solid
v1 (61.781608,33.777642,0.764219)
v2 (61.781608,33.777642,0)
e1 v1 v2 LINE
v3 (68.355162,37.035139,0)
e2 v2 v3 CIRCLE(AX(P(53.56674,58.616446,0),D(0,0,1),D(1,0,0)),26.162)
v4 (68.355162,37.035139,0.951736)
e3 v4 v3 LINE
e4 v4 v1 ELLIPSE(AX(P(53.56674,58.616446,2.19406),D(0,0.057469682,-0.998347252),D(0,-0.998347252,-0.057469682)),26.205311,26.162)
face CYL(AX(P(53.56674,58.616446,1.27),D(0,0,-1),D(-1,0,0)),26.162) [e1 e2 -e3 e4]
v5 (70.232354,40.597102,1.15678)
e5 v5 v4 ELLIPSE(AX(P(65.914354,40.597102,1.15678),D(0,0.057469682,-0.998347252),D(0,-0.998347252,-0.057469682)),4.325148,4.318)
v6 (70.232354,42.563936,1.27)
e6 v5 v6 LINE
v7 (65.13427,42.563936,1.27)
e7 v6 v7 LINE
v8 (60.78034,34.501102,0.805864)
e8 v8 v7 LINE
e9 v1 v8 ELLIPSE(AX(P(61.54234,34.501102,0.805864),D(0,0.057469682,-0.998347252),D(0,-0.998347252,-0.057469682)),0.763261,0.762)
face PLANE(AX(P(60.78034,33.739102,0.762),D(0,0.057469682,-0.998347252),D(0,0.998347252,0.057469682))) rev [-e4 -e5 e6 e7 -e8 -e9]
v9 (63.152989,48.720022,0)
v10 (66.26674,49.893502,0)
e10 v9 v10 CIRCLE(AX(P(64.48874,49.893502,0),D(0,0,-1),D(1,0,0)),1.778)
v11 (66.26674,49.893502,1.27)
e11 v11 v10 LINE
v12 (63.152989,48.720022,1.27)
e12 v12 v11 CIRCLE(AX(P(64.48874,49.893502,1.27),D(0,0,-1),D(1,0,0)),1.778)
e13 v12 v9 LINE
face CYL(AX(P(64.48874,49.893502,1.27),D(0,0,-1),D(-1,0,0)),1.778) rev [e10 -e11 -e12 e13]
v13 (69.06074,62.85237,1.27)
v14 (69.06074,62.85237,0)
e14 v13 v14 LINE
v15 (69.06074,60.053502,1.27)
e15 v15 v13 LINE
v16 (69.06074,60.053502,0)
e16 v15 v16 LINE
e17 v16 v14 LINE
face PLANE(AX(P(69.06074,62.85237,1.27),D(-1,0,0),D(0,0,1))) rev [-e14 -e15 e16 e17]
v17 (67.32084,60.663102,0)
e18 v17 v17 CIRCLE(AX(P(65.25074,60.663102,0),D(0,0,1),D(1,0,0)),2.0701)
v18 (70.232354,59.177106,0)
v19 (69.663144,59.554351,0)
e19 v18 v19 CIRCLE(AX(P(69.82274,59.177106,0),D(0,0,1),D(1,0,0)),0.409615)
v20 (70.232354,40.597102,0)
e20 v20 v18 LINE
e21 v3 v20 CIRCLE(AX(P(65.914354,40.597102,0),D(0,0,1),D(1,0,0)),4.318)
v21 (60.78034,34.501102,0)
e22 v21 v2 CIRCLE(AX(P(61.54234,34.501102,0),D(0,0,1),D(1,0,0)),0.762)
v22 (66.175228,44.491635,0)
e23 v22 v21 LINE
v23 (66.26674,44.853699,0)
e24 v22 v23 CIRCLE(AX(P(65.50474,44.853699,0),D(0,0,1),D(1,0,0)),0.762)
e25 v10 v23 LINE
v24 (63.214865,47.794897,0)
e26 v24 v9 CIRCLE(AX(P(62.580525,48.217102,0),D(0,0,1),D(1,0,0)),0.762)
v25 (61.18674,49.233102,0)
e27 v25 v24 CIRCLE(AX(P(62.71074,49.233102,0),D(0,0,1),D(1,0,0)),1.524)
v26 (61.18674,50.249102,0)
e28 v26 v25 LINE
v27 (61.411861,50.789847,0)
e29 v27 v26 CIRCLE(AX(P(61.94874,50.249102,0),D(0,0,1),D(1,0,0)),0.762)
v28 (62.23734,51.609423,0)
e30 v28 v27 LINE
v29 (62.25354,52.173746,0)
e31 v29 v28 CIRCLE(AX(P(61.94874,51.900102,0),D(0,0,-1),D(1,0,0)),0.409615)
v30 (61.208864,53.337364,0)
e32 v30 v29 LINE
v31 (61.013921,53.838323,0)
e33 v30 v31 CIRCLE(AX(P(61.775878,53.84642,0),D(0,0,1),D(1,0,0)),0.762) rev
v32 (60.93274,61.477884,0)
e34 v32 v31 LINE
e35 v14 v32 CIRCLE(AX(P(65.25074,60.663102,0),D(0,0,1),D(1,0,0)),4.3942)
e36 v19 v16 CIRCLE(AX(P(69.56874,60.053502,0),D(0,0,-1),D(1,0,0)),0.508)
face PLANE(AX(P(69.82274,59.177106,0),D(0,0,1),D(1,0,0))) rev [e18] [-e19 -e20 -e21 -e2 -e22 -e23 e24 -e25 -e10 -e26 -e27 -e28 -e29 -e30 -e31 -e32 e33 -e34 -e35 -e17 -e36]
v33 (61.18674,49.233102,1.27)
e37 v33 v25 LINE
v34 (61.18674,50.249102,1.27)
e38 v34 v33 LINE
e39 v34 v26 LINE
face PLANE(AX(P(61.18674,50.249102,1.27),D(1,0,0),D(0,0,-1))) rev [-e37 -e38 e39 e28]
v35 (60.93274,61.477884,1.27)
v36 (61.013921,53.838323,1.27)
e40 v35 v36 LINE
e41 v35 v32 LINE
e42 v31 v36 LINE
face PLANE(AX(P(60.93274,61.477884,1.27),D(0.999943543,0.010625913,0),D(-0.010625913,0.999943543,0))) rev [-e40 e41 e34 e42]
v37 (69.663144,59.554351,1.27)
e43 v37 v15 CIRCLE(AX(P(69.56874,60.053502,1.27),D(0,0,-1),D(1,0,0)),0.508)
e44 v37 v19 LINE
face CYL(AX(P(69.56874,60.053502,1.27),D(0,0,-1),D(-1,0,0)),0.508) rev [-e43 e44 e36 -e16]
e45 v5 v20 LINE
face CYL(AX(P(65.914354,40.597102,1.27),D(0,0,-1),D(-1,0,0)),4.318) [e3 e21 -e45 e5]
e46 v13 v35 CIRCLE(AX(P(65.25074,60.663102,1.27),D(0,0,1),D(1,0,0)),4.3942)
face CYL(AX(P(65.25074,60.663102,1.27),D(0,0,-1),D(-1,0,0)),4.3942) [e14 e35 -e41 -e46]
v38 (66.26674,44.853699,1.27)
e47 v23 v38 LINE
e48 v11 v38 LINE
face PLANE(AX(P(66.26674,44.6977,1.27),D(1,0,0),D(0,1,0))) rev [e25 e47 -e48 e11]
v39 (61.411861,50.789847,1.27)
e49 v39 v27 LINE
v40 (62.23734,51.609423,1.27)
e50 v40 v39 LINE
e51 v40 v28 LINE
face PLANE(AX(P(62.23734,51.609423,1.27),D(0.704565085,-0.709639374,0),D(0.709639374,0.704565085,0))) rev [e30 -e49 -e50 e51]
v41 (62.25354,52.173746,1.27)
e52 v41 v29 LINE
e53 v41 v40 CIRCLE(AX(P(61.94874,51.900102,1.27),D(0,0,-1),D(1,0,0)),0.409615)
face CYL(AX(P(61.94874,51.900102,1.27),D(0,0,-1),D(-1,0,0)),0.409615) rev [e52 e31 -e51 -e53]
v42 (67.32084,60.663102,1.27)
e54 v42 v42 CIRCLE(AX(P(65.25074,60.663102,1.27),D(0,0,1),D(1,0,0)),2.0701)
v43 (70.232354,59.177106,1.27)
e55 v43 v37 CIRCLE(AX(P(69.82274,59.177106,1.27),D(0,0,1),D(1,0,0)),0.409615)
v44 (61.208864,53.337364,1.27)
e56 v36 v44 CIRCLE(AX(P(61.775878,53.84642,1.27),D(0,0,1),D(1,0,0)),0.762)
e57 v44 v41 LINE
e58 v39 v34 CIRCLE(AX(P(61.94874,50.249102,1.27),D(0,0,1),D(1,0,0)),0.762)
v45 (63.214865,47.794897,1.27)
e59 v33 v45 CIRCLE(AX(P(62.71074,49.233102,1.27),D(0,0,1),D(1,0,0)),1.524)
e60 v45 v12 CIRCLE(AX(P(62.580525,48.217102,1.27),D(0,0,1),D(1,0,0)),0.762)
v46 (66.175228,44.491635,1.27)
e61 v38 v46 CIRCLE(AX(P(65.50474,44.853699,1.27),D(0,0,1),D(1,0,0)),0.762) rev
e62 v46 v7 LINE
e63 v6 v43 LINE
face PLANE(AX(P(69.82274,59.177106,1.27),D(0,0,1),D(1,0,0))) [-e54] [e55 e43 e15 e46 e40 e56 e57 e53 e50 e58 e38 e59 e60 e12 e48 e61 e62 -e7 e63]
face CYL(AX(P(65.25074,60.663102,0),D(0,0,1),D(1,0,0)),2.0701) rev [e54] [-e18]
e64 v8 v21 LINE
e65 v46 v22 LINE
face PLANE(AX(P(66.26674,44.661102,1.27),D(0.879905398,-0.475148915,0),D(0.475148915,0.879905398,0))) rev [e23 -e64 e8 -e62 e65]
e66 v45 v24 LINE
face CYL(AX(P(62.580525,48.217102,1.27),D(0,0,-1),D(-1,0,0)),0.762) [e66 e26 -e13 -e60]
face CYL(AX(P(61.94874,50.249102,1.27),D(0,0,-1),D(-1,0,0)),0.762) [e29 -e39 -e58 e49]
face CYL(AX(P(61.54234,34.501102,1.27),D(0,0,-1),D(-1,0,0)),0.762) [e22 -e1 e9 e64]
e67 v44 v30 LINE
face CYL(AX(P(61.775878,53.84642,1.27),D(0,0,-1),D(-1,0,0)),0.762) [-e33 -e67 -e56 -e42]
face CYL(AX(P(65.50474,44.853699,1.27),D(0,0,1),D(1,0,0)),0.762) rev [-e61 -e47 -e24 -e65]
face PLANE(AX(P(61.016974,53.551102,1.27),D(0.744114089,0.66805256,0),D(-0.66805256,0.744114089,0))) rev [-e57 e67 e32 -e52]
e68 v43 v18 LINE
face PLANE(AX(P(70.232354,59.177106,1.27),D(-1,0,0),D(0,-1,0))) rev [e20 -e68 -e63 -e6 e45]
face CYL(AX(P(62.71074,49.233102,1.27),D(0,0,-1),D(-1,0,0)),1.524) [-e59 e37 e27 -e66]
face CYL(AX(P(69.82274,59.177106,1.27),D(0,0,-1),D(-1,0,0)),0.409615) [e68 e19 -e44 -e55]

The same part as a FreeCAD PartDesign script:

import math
import FreeCAD as App
import Part
import Sketcher
Q = App.Units.Quantity


def edges_at(feature, points):
    """Names of the edges that pass closest to the given points."""
    edges = feature.Shape.Edges
    near = lambda p: min(range(len(edges)), key=lambda i: edges[i].distToShape(Part.Vertex(*p))[0])
    return sorted({f"Edge{near(p) + 1}" for p in points})


def add_polygon(sketch, points):
    """Adds a closed chain of lines whose ends are joined by coincident constraints."""
    first, n = sketch.GeometryCount, len(points)
    for a, b in zip(points, points[1:] + points[:1]):
        sketch.addGeometry(Part.LineSegment(App.Vector(*a, 0), App.Vector(*b, 0)), False)
    for i in range(n):
        sketch.addConstraint(Sketcher.Constraint("Coincident", first + i, 2, first + (i + 1) % n, 1))

doc = App.newDocument("Part")
body = doc.addObject("PartDesign::Body", "Body")

sketch1 = body.newObject("Sketcher::SketchObject", "Sketch")
sketch1.AttachmentSupport = (doc.getObject("XY_Plane"), [""])
sketch1.MapMode = "FlatFace"
sketch1.addGeometry([
    Part.LineSegment(App.Vector(70.232354, 40.597102, 0), App.Vector(70.232354, 59.177106, 0)),
    Part.ArcOfCircle(Part.Circle(App.Vector(69.82274, 59.177106, 0), App.Vector(0, 0, 1), 0.409615), math.radians(0), math.radians(112.931099)),
    Part.ArcOfCircle(Part.Circle(App.Vector(69.56874, 60.053502, 0), App.Vector(0, 0, 1), 0.508), math.radians(-180), math.radians(-79.29016)),
    Part.LineSegment(App.Vector(69.06074, 60.053502, 0), App.Vector(69.06074, 62.85237, 0)),
    Part.ArcOfCircle(Part.Circle(App.Vector(65.25074, 60.663102, 0), App.Vector(0, 0, 1), 4.3942), math.radians(29.882148), math.radians(169.314255)),
    Part.LineSegment(App.Vector(60.93274, 61.477884, 0), App.Vector(61.016974, 53.551102, 0)),
    Part.LineSegment(App.Vector(61.016974, 53.551102, 0), App.Vector(62.25354, 52.173746, 0)),
    Part.ArcOfCircle(Part.Circle(App.Vector(61.94874, 51.900102, 0), App.Vector(0, 0, 1), 0.409615), math.radians(-45.205582), math.radians(41.916938)),
    Part.LineSegment(App.Vector(62.23734, 51.609423, 0), App.Vector(61.411861, 50.789847, 0)),
    Part.ArcOfCircle(Part.Circle(App.Vector(61.94874, 50.249102, 0), App.Vector(0, 0, 1), 0.762), math.radians(134.794419), math.radians(180)),
    Part.LineSegment(App.Vector(61.18674, 50.249102, 0), App.Vector(61.18674, 49.233102, 0)),
    Part.ArcOfCircle(Part.Circle(App.Vector(62.71074, 49.233102, 0), App.Vector(0, 0, 1), 1.524), math.radians(-180), math.radians(-70.683223)),
    Part.ArcOfCircle(Part.Circle(App.Vector(62.580525, 48.217102, 0), App.Vector(0, 0, 1), 0.762), math.radians(-33.647022), math.radians(41.299873)),
    Part.ArcOfCircle(Part.Circle(App.Vector(64.48874, 49.893502, 0), App.Vector(0, 0, 1), 1.778), math.radians(0), math.radians(221.299873)),
    Part.LineSegment(App.Vector(66.26674, 49.893502, 0), App.Vector(66.26674, 44.661102, 0)),
    Part.LineSegment(App.Vector(66.26674, 44.661102, 0), App.Vector(60.78034, 34.501102, 0)),
    Part.ArcOfCircle(Part.Circle(App.Vector(61.54234, 34.501102, 0), App.Vector(0, 0, 1), 0.762), math.radians(180), math.radians(288.300455)),
    Part.ArcOfCircle(Part.Circle(App.Vector(53.56674, 58.616446, 0), App.Vector(0, 0, 1), 26.162), math.radians(-71.699545), math.radians(-55.579413)),
    Part.ArcOfCircle(Part.Circle(App.Vector(65.914354, 40.597102, 0), App.Vector(0, 0, 1), 4.318), math.radians(-55.579413), math.radians(0)),
], False)
sketch1.addConstraint([
    Sketcher.Constraint("Tangent", 0, 2, 1, 1),
    Sketcher.Constraint("Coincident", 1, 2, 2, 2),
    Sketcher.Constraint("Tangent", 2, 1, 3, 1),
    Sketcher.Constraint("Coincident", 3, 2, 4, 1),
    Sketcher.Constraint("Coincident", 4, 2, 5, 1),
    Sketcher.Constraint("Coincident", 5, 2, 6, 1),
    Sketcher.Constraint("Tangent", 6, 2, 7, 2),
    Sketcher.Constraint("Tangent", 7, 1, 8, 1),
    Sketcher.Constraint("Tangent", 8, 2, 9, 1),
    Sketcher.Constraint("Tangent", 9, 2, 10, 1),
    Sketcher.Constraint("Tangent", 10, 2, 11, 1),
    Sketcher.Constraint("Coincident", 11, 2, 12, 1),
    Sketcher.Constraint("Tangent", 12, 2, 13, 2),
    Sketcher.Constraint("Tangent", 13, 1, 14, 1),
    Sketcher.Constraint("Coincident", 14, 2, 15, 1),
    Sketcher.Constraint("Coincident", 15, 2, 16, 1),
    Sketcher.Constraint("Tangent", 16, 2, 17, 1),
    Sketcher.Constraint("Tangent", 17, 2, 18, 1),
    Sketcher.Constraint("Tangent", 18, 2, 0, 1),
    Sketcher.Constraint("Vertical", 0),
    Sketcher.Constraint("Vertical", 3),
    Sketcher.Constraint("Vertical", 10),
    Sketcher.Constraint("Vertical", 14),
    Sketcher.Constraint("Equal", 1, 7),
    Sketcher.Constraint("Equal", 9, 12),
    Sketcher.Constraint("Equal", 12, 16),
    Sketcher.Constraint("Horizontal", 16, 3, 15, 2),
    Sketcher.Constraint("Vertical", 7, 3, 9, 3),
    Sketcher.Constraint("Radius", 2, Q("0.02 in")),
    Sketcher.Constraint("Radius", 9, Q("0.03 in")),
    Sketcher.Constraint("Radius", 11, Q("0.06 in")),
    Sketcher.Constraint("Radius", 13, Q("0.07 in")),
    Sketcher.Constraint("Radius", 17, Q("1.03 in")),
    Sketcher.Constraint("Radius", 18, Q("0.17 in")),
    Sketcher.Constraint("Radius", 4, Q("0.173 in")),
    Sketcher.Constraint("DistanceY", 10, 2, 10, 1, Q("0.04 in")),
    Sketcher.Constraint("DistanceX", 7, 3, 2, 3, Q("0.3 in")),
    Sketcher.Constraint("DistanceX", 11, 3, 4, 3, Q("0.1 in")),
    Sketcher.Constraint("DistanceX", 9, 3, 13, 3, Q("0.1 in")),
    Sketcher.Constraint("DistanceY", 18, 3, 12, 3, Q("0.3 in")),
    Sketcher.Constraint("DistanceY", 15, 2, 14, 2, Q("0.4 in")),
    Sketcher.Constraint("DistanceY", 14, 2, 14, 1, Q("0.206 in")),
    Sketcher.Constraint("DistanceX", 2, 3, 1, 3, Q("0.01 in")),
    Sketcher.Constraint("DistanceY", 9, 3, 4, 3, Q("0.41 in")),
    Sketcher.Constraint("DistanceY", 12, 3, 11, 3, Q("0.04 in")),
    Sketcher.Constraint("DistanceY", 16, 3, 12, 3, Q("0.54 in")),
    Sketcher.Constraint("DistanceX", 17, 3, 7, 3, Q("0.33 in")),
    Sketcher.Constraint("DistanceX", 4, 2, 4, 3, Q("0.17 in")),
    Sketcher.Constraint("DistanceY", 9, 3, 5, 2, Q("0.13 in")),
    Sketcher.Constraint("DistanceY", 2, 3, 4, 3, Q("0.024 in")),
    Sketcher.Constraint("DistanceY", 7, 3, 4, 3, Q("0.345 in")),
    Sketcher.Constraint("DistanceX", 16, 3, 11, 3, Q("0.046 in")),
    Sketcher.Constraint("DistanceX", 7, 3, 6, 2, Q("0.012 in")),
    Sketcher.Constraint("DistanceX", -1, 1, 12, 3, Q("2.4638002 in")),
    Sketcher.Constraint("DistanceY", -1, 1, 2, 3, 60.053502),
    Sketcher.Constraint("DistanceY", 0, 1, 0, 2, 18.580004),
])
pad1 = body.newObject("PartDesign::Pad", "Pad")
pad1.Profile = sketch1
pad1.Length = Q("0.05 in")

sketch2 = body.newObject("Sketcher::SketchObject", "Sketch001")
sketch2.AttachmentSupport = (doc.getObject("XY_Plane"), [""])
sketch2.MapMode = "FlatFace"
sketch2.AttachmentOffset = App.Placement(App.Vector(0, 0, 0.05 * 25.4), App.Rotation())
sketch2.addGeometry(Part.Circle(App.Vector(65.25074, 60.663102, 0), App.Vector(0, 0, 1), 2.0701), False)
sketch2.addConstraint([
    Sketcher.Constraint("Diameter", 0, Q("0.163 in")),
    Sketcher.Constraint("DistanceY", -1, 1, 0, 3, 60.663102),
    Sketcher.Constraint("DistanceX", -1, 1, 0, 3, 65.25074),
])
pocket1 = body.newObject("PartDesign::Pocket", "Pocket")
pocket1.Profile = sketch2
pocket1.Type = "ThroughAll"
doc.recompute()

fillet = body.newObject("PartDesign::Fillet", "Fillet")
fillet.Base = (pocket1, edges_at(pocket1, [(66.267, 44.661, 0.635), (61.017, 53.551, 0.635)]))
fillet.Radius = Q("0.03 in")

sketch3 = body.newObject("Sketcher::SketchObject", "Sketch002")
sketch3.AttachmentSupport = (doc.getObject("YZ_Plane"), [""])
sketch3.MapMode = "FlatFace"
sketch3.AttachmentOffset = App.Placement(App.Vector(0, 0, 70.232354), App.Rotation())
add_polygon(sketch3, [(33.739102, 1.27), (33.739102, 0.762), (42.563936, 1.27)])
sketch3.addConstraint([
    Sketcher.Constraint("Vertical", 0),
    Sketcher.Constraint("Horizontal", 2),
    Sketcher.Constraint("DistanceY", 0, 2, 0, 1, Q("0.02 in")),
    Sketcher.Constraint("DistanceY", -1, 1, 0, 2, Q("0.03 in")),
    Sketcher.Constraint("DistanceX", -1, 1, 0, 2, 33.739102),
    Sketcher.Constraint("DistanceX", 2, 2, 2, 1, 8.824834),
])
pocket2 = body.newObject("PartDesign::Pocket", "Pocket001")
pocket2.Profile = sketch3
pocket2.Type = "ThroughAll"

doc.recompute()
